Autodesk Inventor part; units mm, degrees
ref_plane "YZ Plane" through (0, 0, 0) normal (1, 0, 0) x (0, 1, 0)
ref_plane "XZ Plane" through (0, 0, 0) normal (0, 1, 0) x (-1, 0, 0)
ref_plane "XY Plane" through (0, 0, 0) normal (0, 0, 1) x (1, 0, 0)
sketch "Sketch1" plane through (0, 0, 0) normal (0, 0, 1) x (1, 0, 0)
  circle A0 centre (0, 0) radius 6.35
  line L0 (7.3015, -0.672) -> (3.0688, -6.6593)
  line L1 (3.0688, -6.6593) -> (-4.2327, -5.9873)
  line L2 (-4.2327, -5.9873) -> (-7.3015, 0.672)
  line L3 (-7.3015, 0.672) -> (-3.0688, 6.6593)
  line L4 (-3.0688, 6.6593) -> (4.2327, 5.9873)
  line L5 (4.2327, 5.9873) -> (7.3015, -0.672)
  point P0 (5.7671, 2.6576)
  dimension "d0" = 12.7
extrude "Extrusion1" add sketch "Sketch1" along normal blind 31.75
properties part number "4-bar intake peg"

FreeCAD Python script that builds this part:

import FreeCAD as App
import Part
import Sketcher
from FreeCAD import Vector
Q = App.Units.Quantity

doc = App.newDocument("Part")
body = doc.addObject("PartDesign::Body", "Body")

# Sketch on XY plane
sketch1 = body.newObject("Sketcher::SketchObject", "Sketch")
sketch1.AttachmentSupport = (doc.getObject("XY_Plane"), [""])
sketch1.MapMode = "FlatFace"
sketch1.addGeometry(Part.LineSegment(Vector(7, -1, 0), Vector(4, 6, 0)), False)
sketch1.addGeometry(Part.LineSegment(Vector(4, 6, 0), Vector(-3, 7, 0)), False)
sketch1.addGeometry(Part.LineSegment(Vector(-3, 7, 0), Vector(-7, 1, 0)), False)
sketch1.addGeometry(Part.LineSegment(Vector(-7, 1, 0), Vector(-4, -6, 0)), False)
sketch1.addGeometry(Part.LineSegment(Vector(-4, -6, 0), Vector(3, -7, 0)), False)
sketch1.addGeometry(Part.LineSegment(Vector(3, -7, 0), Vector(7, -1, 0)), False)
sketch1.addConstraint(Sketcher.Constraint("Coincident", 0, 2, 1, 1))
sketch1.addConstraint(Sketcher.Constraint("Coincident", 1, 2, 2, 1))
sketch1.addConstraint(Sketcher.Constraint("Coincident", 2, 2, 3, 1))
sketch1.addConstraint(Sketcher.Constraint("Coincident", 3, 2, 4, 1))
sketch1.addConstraint(Sketcher.Constraint("Coincident", 4, 2, 5, 1))
sketch1.addConstraint(Sketcher.Constraint("Coincident", 5, 2, 0, 1))
sketch1.addConstraint(Sketcher.Constraint("Symmetric", 0, 2, 3, 2, -1, 1))
sketch1.addConstraint(Sketcher.Constraint("Symmetric", 1, 2, 4, 2, -1, 1))
sketch1.addConstraint(Sketcher.Constraint("Symmetric", 2, 2, 5, 2, -1, 1))
sketch1.addConstraint(Sketcher.Constraint("Equal", 0, 1))
sketch1.addConstraint(Sketcher.Constraint("Equal", 1, 2))
sketch1.addConstraint(Sketcher.Constraint("DistanceX", 2, 2, 0, 2, Q("0.4541 in")))
sketch1.addConstraint(Sketcher.Constraint("DistanceY", 3, 2, 1, 2, Q("0.4979 in")))
sketch1.addConstraint(Sketcher.Constraint("Distance", 0, Q("7.3324 mm")))
sketch1.addConstraint(Sketcher.Constraint("DistanceX", -1, 1, 0, 2, Q("4.2327 mm")))
pad1 = body.newObject("PartDesign::Pad", "Pad")
pad1.Profile = sketch1
pad1.Length = Q("1.25 in")

doc.recompute()
